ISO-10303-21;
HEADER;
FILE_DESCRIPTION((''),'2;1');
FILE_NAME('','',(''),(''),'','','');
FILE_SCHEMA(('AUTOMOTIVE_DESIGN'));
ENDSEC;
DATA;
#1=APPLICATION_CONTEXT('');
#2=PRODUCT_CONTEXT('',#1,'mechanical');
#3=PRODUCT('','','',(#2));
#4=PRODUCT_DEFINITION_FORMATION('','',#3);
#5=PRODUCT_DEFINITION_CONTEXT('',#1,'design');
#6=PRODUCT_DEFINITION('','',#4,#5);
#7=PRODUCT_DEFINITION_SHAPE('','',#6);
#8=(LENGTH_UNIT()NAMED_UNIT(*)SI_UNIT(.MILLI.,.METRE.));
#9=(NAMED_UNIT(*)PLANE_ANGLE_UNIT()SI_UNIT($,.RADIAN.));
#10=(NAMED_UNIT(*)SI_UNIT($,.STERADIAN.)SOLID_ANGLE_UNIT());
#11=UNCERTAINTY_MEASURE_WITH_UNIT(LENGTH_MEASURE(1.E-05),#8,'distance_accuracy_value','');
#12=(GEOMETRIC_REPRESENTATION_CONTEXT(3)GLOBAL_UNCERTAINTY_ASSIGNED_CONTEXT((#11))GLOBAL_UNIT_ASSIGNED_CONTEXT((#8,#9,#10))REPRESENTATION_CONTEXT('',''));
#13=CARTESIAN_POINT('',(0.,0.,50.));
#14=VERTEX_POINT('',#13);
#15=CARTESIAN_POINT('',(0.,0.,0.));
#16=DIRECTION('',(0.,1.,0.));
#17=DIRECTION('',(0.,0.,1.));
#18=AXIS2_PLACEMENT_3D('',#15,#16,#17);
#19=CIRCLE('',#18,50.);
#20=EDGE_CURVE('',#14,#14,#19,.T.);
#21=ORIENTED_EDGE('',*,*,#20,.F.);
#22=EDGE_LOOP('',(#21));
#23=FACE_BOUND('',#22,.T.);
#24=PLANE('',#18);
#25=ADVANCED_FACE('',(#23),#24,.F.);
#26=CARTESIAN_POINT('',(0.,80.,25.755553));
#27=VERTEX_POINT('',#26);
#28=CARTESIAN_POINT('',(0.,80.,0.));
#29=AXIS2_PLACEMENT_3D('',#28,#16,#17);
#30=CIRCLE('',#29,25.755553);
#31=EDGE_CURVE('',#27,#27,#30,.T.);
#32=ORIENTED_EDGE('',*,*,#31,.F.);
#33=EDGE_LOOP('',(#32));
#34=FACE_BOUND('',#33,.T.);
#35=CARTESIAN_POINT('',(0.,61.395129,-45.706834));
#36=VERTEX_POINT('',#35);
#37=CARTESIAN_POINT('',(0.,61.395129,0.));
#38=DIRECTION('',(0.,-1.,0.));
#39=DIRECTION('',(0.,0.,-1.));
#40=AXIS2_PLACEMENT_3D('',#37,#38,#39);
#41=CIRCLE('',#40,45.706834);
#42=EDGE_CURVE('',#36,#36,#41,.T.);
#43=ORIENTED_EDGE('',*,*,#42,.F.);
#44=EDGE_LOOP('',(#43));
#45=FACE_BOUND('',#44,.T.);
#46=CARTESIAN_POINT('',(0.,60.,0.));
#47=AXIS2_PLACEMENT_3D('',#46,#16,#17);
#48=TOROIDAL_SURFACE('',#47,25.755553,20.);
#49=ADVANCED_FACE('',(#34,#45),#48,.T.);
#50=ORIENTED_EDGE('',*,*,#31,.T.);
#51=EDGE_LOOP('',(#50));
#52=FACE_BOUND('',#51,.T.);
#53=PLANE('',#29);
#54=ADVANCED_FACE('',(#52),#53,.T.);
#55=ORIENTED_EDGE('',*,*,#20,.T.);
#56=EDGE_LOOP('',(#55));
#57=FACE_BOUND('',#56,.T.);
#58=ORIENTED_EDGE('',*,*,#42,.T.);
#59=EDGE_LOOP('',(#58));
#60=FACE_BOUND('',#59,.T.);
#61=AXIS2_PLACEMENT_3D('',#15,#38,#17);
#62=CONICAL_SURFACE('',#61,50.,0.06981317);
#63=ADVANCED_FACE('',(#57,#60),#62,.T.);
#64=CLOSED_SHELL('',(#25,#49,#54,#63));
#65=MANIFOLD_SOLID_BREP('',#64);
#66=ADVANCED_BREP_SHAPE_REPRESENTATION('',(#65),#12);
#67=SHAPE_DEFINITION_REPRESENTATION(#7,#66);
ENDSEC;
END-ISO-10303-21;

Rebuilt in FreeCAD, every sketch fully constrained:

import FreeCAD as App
import Part
import Sketcher

V = App.Vector
Q = App.Units.Quantity


def edges_at(feature, points):
    """Names of the edges that pass closest to the given points."""
    edges = feature.Shape.Edges
    near = lambda p: min(range(len(edges)), key=lambda i: edges[i].distToShape(Part.Vertex(*p))[0])
    return sorted({f"Edge{near(p) + 1}" for p in points})

doc = App.newDocument("Part")
body = doc.addObject("PartDesign::Body", "Body")

sketch1 = body.newObject("Sketcher::SketchObject", "Sketch")
sketch1.AttachmentSupport = (doc.getObject("XZ_Plane"), [""])
sketch1.MapMode = "FlatFace"
sketch1.addGeometry(Part.Circle(V(0, 0, 0), V(0, 0, 1), 50), False)
sketch1.addConstraint(Sketcher.Constraint("Coincident", 0, 3, -1, 1))
sketch1.addConstraint(Sketcher.Constraint("Diameter", 0, Q("100 mm")))
pad1 = body.newObject("PartDesign::Pad", "Pad")
pad1.Profile = sketch1
pad1.Length = 80
pad1.Reversed = True
pad1.TaperAngle = -4
doc.recompute()

fillet = body.newObject("PartDesign::Fillet", "Fillet")
fillet.Base = (pad1, edges_at(pad1, [(-44.406, 80, 0)]))
fillet.Radius = 20

doc.recompute()
